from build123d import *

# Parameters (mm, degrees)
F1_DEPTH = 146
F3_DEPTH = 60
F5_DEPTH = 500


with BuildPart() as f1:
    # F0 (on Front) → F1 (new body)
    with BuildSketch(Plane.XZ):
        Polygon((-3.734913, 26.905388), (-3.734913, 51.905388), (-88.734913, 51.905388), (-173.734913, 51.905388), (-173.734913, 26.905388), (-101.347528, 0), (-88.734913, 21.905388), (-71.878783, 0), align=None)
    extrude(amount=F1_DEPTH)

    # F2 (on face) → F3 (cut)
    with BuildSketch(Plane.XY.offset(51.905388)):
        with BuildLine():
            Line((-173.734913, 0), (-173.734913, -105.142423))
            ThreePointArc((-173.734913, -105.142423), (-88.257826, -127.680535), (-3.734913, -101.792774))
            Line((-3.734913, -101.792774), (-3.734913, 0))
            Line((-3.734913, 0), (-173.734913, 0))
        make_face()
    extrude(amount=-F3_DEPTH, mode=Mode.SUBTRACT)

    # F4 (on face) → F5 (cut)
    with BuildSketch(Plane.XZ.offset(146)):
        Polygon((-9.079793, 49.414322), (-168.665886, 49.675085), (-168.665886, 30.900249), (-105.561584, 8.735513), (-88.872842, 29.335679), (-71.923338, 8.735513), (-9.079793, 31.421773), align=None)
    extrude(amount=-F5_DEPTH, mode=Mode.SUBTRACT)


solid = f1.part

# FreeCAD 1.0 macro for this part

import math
import FreeCAD as App
import Part
import Sketcher

V = App.Vector
Q = App.Units.Quantity

doc = App.newDocument("Part")
params = doc.addObject("Spreadsheet::Sheet", "Params")
for row, (alias, value) in enumerate([
    ("sketch1_width", "170 mm"),
    ("sketch1_height", "25 mm"),
    ("pad1_length", "146 mm"),
    ("sketch2_width", "170 mm"),
    ("pocket1_length", "60 mm"),
    ("pocket2_length", "500 mm"),
], start=1):
    params.set(f"A{row}", alias)
    params.set(f"B{row}", "=" + value)
    params.setAlias(f"B{row}", alias)

body = doc.addObject("PartDesign::Body", "Body")

# Sketch on XZ plane
sketch1 = doc.addObject("Sketcher::SketchObject", "Sketch")
body.addObject(sketch1)
sketch1.AttachmentSupport = (doc.XZ_Plane, [""])
sketch1.MapMode = "FlatFace"
sketch1.addGeometry([
    Part.LineSegment(V(-3.734913, 26.905388, 0), V(-3.734913, 51.905388, 0)),  # 0
    Part.LineSegment(V(-3.734913, 51.905388, 0), V(-173.734913, 51.905388, 0)),  # 1
    Part.LineSegment(V(-173.734913, 51.905388, 0), V(-173.734913, 26.905388, 0)),  # 2
    Part.LineSegment(V(-173.734913, 26.905388, 0), V(-101.347528, 0, 0)),  # 3
    Part.LineSegment(V(-101.347528, 0, 0), V(-88.734913, 21.905388, 0)),  # 4
    Part.LineSegment(V(-88.734913, 21.905388, 0), V(-71.878783, 0, 0)),  # 5
    Part.LineSegment(V(-71.878783, 0, 0), V(-3.734913, 26.905388, 0)),  # 6
], False)
sketch1.addConstraint([
    Sketcher.Constraint("Coincident", 0, 2, 1, 1),
    Sketcher.Constraint("Coincident", 1, 2, 2, 1),
    Sketcher.Constraint("Coincident", 2, 2, 3, 1),
    Sketcher.Constraint("Coincident", 3, 2, 4, 1),
    Sketcher.Constraint("Coincident", 4, 2, 5, 1),
    Sketcher.Constraint("Coincident", 5, 2, 6, 1),
    Sketcher.Constraint("Coincident", 6, 2, 0, 1),
    Sketcher.Constraint("Vertical", 0),
    Sketcher.Constraint("Horizontal", 1),
    Sketcher.Constraint("Vertical", 2),
    Sketcher.Constraint("PointOnObject", 3, 2, -1),
    Sketcher.Constraint("PointOnObject", 5, 2, -1),
    Sketcher.Constraint("Horizontal", 2, 2, 6, 2),
    Sketcher.Constraint("DistanceX", 1, 2, 1, 1, Q("170 mm")),
    Sketcher.Constraint("DistanceY", 0, 1, 0, 2, Q("25 mm")),
    Sketcher.Constraint("DistanceX", 2, 2, 4, 2, Q("85 mm")),
    Sketcher.Constraint("DistanceY", 4, 2, 2, 2, Q("5 mm")),
    Sketcher.Constraint("Distance", 5, Q("27.6401 mm")),
    Sketcher.Constraint("Distance", 3, Q("77.22586 mm")),
    Sketcher.Constraint("DistanceY", -1, 1, 0, 2, Q("51.905388 mm")),
    Sketcher.Constraint("DistanceX", 0, 2, -1, 1, Q("3.734913 mm")),
])
sketch1.setExpression("Constraints[13]", "Params.sketch1_width")
sketch1.setExpression("Constraints[14]", "Params.sketch1_height")
pad1 = doc.addObject("PartDesign::Pad", "Pad")
body.addObject(pad1)
pad1.Profile = sketch1
pad1.setExpression("Length", "Params.pad1_length")

# Sketch on XY plane
sketch2 = doc.addObject("Sketcher::SketchObject", "Sketch001")
body.addObject(sketch2)
sketch2.AttachmentSupport = (doc.XY_Plane, [""])
sketch2.MapMode = "FlatFace"
sketch2.AttachmentOffset = App.Placement(V(0, 0, 51.905388), App.Rotation())
sketch2.addGeometry([
    Part.LineSegment(V(-173.734913, 0, 0), V(-173.734913, -105.142423, 0)),
    Part.ArcOfCircle(Part.Circle(V(-91.436122, 33.623037, 0), V(0, 0, 1), 161.334881), math.radians(-120.671262), math.radians(-57.071139)),
    Part.LineSegment(V(-3.734913, -101.792774, 0), V(-3.734913, 0, 0)),
    Part.LineSegment(V(-3.734913, 0, 0), V(-173.734913, 0, 0)),
], False)
sketch2.addConstraint([
    Sketcher.Constraint("Coincident", 0, 2, 1, 1),
    Sketcher.Constraint("Coincident", 1, 2, 2, 1),
    Sketcher.Constraint("Coincident", 2, 2, 3, 1),
    Sketcher.Constraint("Coincident", 3, 2, 0, 1),
    Sketcher.Constraint("Vertical", 0),
    Sketcher.Constraint("Vertical", 2),
    Sketcher.Constraint("Horizontal", 3),
    Sketcher.Constraint("PointOnObject", 2, 2, -1),
    Sketcher.Constraint("DistanceX", 3, 2, 3, 1, Q("170 mm")),
    Sketcher.Constraint("Radius", 1, Q("161.334881 mm")),
    Sketcher.Constraint("DistanceY", 0, 2, 0, 1, Q("105.142423 mm")),
    Sketcher.Constraint("DistanceY", 2, 1, 2, 2, Q("101.792774 mm")),
    Sketcher.Constraint("DistanceX", 1, 3, -1, 1, Q("91.436122 mm")),
])
sketch2.setExpression("Constraints[8]", "Params.sketch2_width")
pocket1 = doc.addObject("PartDesign::Pocket", "Pocket")
body.addObject(pocket1)
pocket1.Profile = sketch2
pocket1.setExpression("Length", "Params.pocket1_length")

# Sketch on XZ plane
sketch3 = doc.addObject("Sketcher::SketchObject", "Sketch002")
body.addObject(sketch3)
sketch3.AttachmentSupport = (doc.XZ_Plane, [""])
sketch3.MapMode = "FlatFace"
sketch3.AttachmentOffset = App.Placement(V(0, 0, 146), App.Rotation())
sketch3.addGeometry([
    Part.LineSegment(V(-9.079793, 49.414322, 0), V(-168.665886, 49.675085, 0)),  # 0
    Part.LineSegment(V(-168.665886, 49.675085, 0), V(-168.665886, 30.900249, 0)),  # 1
    Part.LineSegment(V(-168.665886, 30.900249, 0), V(-105.561584, 8.735513, 0)),  # 2
    Part.LineSegment(V(-105.561584, 8.735513, 0), V(-88.872842, 29.335679, 0)),  # 3
    Part.LineSegment(V(-88.872842, 29.335679, 0), V(-71.923338, 8.735513, 0)),  # 4
    Part.LineSegment(V(-71.923338, 8.735513, 0), V(-9.079793, 31.421773, 0)),  # 5
    Part.LineSegment(V(-9.079793, 31.421773, 0), V(-9.079793, 49.414322, 0)),  # 6
], False)
sketch3.addConstraint([
    Sketcher.Constraint("Coincident", 0, 2, 1, 1),
    Sketcher.Constraint("Coincident", 1, 2, 2, 1),
    Sketcher.Constraint("Coincident", 2, 2, 3, 1),
    Sketcher.Constraint("Coincident", 3, 2, 4, 1),
    Sketcher.Constraint("Coincident", 4, 2, 5, 1),
    Sketcher.Constraint("Coincident", 5, 2, 6, 1),
    Sketcher.Constraint("Coincident", 6, 2, 0, 1),
    Sketcher.Constraint("Vertical", 1),
    Sketcher.Constraint("Vertical", 6),
    Sketcher.Constraint("Horizontal", 2, 2, 4, 2),
    Sketcher.Constraint("DistanceY", 6, 1, 6, 2, Q("17.992549 mm")),
    Sketcher.Constraint("DistanceY", 1, 2, 1, 1, Q("18.774836 mm")),
    Sketcher.Constraint("DistanceY", -1, 1, 1, 2, Q("30.900249 mm")),
    Sketcher.Constraint("DistanceY", -1, 1, 3, 2, Q("29.335679 mm")),
    Sketcher.Constraint("DistanceX", 4, 2, -1, 1, Q("71.923338 mm")),
    Sketcher.Constraint("DistanceX", 2, 2, 3, 2, Q("16.688742 mm")),
    Sketcher.Constraint("DistanceX", 1, 2, 4, 2, Q("96.742548 mm")),
    Sketcher.Constraint("DistanceY", 4, 2, 5, 2, Q("22.68626 mm")),
    Sketcher.Constraint("DistanceX", 3, 2, 5, 2, Q("79.793049 mm")),
    Sketcher.Constraint("Distance", 0, Q("159.586306 mm")),
    Sketcher.Constraint("Distance", 2, Q("66.883693 mm")),
])
pocket2 = doc.addObject("PartDesign::Pocket", "Pocket001")
body.addObject(pocket2)
pocket2.Profile = sketch3
pocket2.setExpression("Length", "Params.pocket2_length")

doc.recompute()
